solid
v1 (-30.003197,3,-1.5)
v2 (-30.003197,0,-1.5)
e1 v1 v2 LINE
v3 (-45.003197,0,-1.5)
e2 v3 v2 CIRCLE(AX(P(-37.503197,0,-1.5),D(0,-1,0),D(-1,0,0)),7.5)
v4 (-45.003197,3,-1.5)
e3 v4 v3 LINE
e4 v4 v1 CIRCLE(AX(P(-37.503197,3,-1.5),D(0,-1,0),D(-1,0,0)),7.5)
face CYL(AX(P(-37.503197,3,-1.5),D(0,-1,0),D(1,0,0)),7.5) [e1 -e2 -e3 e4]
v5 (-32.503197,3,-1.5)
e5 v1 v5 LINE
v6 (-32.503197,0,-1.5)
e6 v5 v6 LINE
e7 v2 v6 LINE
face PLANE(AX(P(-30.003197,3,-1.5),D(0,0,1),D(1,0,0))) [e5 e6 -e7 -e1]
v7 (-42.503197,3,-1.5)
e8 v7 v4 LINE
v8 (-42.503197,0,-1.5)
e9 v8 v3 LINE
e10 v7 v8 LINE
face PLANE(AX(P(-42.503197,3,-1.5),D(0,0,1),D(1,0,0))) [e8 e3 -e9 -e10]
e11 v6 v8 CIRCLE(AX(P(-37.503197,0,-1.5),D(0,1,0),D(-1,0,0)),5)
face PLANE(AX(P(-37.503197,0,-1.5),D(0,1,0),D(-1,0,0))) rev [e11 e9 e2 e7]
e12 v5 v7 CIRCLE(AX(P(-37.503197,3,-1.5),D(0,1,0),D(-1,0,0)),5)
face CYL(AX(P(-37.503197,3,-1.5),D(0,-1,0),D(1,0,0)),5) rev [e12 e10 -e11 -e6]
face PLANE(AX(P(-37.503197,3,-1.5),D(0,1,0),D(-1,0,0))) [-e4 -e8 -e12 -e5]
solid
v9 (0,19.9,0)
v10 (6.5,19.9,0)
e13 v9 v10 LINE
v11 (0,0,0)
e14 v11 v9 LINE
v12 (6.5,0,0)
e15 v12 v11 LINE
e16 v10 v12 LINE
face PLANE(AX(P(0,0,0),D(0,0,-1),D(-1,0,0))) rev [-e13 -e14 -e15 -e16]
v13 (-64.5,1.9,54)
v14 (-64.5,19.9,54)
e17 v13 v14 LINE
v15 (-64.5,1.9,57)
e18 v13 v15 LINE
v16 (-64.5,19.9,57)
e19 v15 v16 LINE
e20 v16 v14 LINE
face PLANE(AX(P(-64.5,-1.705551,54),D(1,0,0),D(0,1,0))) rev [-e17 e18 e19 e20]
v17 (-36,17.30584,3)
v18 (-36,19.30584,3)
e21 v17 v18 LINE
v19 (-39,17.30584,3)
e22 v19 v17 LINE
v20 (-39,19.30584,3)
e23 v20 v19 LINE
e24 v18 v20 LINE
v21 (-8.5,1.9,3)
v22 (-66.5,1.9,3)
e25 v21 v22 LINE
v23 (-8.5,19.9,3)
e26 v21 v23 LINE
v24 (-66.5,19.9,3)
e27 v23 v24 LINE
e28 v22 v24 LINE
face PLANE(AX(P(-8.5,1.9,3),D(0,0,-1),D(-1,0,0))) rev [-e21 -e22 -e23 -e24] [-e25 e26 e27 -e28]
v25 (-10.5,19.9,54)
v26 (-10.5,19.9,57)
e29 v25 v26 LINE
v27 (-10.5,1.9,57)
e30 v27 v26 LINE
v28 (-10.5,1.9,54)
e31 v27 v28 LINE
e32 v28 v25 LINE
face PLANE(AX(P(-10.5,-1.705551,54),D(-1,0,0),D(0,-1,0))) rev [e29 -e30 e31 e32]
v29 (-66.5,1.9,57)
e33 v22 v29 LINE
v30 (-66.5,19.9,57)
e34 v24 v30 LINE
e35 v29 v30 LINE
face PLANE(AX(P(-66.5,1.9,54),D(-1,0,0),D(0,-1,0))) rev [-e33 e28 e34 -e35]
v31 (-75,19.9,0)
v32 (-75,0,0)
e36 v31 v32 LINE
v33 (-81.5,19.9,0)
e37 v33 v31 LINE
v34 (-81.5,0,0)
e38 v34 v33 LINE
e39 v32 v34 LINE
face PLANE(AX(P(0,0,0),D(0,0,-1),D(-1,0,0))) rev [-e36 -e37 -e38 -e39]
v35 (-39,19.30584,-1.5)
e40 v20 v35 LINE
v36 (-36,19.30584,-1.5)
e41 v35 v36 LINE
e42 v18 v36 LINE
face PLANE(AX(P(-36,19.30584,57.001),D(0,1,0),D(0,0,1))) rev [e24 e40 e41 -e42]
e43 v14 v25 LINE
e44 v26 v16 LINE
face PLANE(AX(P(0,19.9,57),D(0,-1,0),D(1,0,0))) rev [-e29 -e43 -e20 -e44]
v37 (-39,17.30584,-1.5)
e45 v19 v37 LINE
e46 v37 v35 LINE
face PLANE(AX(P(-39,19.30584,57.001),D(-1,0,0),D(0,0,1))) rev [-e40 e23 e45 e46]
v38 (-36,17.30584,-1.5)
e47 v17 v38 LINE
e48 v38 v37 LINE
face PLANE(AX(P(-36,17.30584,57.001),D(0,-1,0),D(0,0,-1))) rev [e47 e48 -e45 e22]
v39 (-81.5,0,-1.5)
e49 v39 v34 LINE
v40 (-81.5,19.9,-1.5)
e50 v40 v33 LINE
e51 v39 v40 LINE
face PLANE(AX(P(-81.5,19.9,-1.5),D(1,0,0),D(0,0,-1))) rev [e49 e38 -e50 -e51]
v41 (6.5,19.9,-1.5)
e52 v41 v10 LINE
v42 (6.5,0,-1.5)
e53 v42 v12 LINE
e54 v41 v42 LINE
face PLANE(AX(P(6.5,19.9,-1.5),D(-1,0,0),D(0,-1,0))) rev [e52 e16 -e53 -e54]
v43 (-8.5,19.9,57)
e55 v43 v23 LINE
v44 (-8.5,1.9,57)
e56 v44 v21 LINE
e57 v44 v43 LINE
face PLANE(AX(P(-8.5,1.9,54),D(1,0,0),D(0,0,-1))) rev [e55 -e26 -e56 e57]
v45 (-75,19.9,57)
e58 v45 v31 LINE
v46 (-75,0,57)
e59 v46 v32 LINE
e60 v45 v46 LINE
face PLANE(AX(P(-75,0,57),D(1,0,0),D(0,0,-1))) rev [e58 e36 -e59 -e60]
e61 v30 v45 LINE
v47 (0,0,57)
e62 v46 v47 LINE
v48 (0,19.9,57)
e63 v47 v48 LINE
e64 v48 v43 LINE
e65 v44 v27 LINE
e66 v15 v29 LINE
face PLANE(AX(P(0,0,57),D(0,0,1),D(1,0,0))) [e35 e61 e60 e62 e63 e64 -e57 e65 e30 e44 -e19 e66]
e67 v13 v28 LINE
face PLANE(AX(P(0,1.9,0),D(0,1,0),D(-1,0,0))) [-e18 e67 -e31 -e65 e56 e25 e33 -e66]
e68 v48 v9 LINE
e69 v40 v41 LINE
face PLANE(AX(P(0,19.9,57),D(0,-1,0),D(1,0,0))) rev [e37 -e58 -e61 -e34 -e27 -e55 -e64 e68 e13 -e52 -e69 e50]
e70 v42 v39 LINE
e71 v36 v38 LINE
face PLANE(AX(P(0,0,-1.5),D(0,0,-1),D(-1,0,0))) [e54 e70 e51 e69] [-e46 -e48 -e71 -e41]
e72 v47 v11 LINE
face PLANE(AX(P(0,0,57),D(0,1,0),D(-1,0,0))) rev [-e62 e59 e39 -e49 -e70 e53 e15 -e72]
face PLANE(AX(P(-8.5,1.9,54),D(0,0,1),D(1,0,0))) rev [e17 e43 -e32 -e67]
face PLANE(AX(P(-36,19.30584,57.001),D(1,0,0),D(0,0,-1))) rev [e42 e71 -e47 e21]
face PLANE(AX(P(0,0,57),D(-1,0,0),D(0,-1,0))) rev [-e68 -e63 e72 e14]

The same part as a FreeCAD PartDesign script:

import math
import FreeCAD as App
import Part
import Sketcher
Q = App.Units.Quantity


def add_polygon(sketch, points):
    """Adds a closed chain of lines whose ends are joined by coincident constraints."""
    first, n = sketch.GeometryCount, len(points)
    for a, b in zip(points, points[1:] + points[:1]):
        sketch.addGeometry(Part.LineSegment(App.Vector(*a, 0), App.Vector(*b, 0)), False)
    for i in range(n):
        sketch.addConstraint(Sketcher.Constraint("Coincident", first + i, 2, first + (i + 1) % n, 1))

doc = App.newDocument("Part")
body = doc.addObject("PartDesign::Body", "Body")

# Sketch on XY plane
sketch1 = body.newObject("Sketcher::SketchObject", "Sketch")
sketch1.AttachmentSupport = (doc.getObject("XY_Plane"), [""])
sketch1.MapMode = "FlatFace"
add_polygon(sketch1, [(-75, 20), (-75, 0), (0, 0), (0, 20)])  # lines 0-3
sketch1.addConstraint([
    Sketcher.Constraint("Vertical", 0),
    Sketcher.Constraint("Horizontal", 1),
    Sketcher.Constraint("Vertical", 2),
    Sketcher.Constraint("Horizontal", 3),
    Sketcher.Constraint("Coincident", 1, 2, -1, 1),
    Sketcher.Constraint("DistanceX", 1, 1, 1, 2, Q("75 mm")),
    Sketcher.Constraint("DistanceY", 0, 2, 0, 1, Q("19.9 mm")),
])
pad1 = body.newObject("PartDesign::Pad", "Pad")
pad1.Profile = sketch1
pad1.Length = 57

# Sketch on XY plane
sketch2 = body.newObject("Sketcher::SketchObject", "Sketch001")
sketch2.AttachmentSupport = (doc.getObject("XY_Plane"), [""])
sketch2.MapMode = "FlatFace"
add_polygon(sketch2, [(6, 20), (6, 0), (-82, 0), (-82, 20)])  # lines 0-3
sketch2.addConstraint([
    Sketcher.Constraint("Vertical", 0),
    Sketcher.Constraint("Horizontal", 1),
    Sketcher.Constraint("Vertical", 2),
    Sketcher.Constraint("Horizontal", 3),
    Sketcher.Constraint("PointOnObject", 0, 2, -1),
    Sketcher.Constraint("DistanceX", 1, 2, 1, 1, Q("88 mm")),
    Sketcher.Constraint("DistanceY", 0, 2, 0, 1, Q("19.9 mm")),
    Sketcher.Constraint("DistanceX", -1, 1, 0, 2, Q("6.5 mm")),
])
pad2 = body.newObject("PartDesign::Pad", "Pad001")
pad2.Profile = sketch2
pad2.Length = 1.5
pad2.Reversed = True

# Sketch on XZ plane
sketch3 = body.newObject("Sketcher::SketchObject", "Sketch002")
sketch3.AttachmentSupport = (doc.getObject("XZ_Plane"), [""])
sketch3.MapMode = "FlatFace"
sketch3.AttachmentOffset = App.Placement(App.Vector(0, 0, -19.9), App.Rotation())
add_polygon(sketch3, [(-66, 3), (-66, 54), (-8, 54), (-8, 3)])  # lines 0-3
sketch3.addConstraint([
    Sketcher.Constraint("Vertical", 0),
    Sketcher.Constraint("Horizontal", 1),
    Sketcher.Constraint("Vertical", 2),
    Sketcher.Constraint("Horizontal", 3),
    Sketcher.Constraint("DistanceX", 1, 1, 1, 2, Q("58 mm")),
    Sketcher.Constraint("DistanceY", 0, 1, 0, 2, Q("51 mm")),
    Sketcher.Constraint("DistanceY", -1, 1, 0, 2, Q("54 mm")),
    Sketcher.Constraint("DistanceX", 0, 2, -1, 1, Q("66.5 mm")),
])
pocket1 = body.newObject("PartDesign::Pocket", "Pocket")
pocket1.Profile = sketch3
pocket1.Length = 18
pocket1.Reversed = True

# Sketch on XZ plane
sketch4 = body.newObject("Sketcher::SketchObject", "Sketch003")
sketch4.AttachmentSupport = (doc.getObject("XZ_Plane"), [""])
sketch4.MapMode = "FlatFace"
sketch4.AttachmentOffset = App.Placement(App.Vector(0, 0, -19.9), App.Rotation())
add_polygon(sketch4, [(-10.5, 54), (-10.5, 57), (-8.5, 57), (-8.5, 54)])  # lines 0-3
add_polygon(sketch4, [(-66.5, 54), (-66.5, 57), (-64.5, 57), (-64.5, 54)])  # lines 4-7
sketch4.addConstraint([
    Sketcher.Constraint("Vertical", 0),
    Sketcher.Constraint("Horizontal", 1),
    Sketcher.Constraint("Vertical", 2),
    Sketcher.Constraint("Horizontal", 3),
    Sketcher.Constraint("Vertical", 4),
    Sketcher.Constraint("Horizontal", 5),
    Sketcher.Constraint("Vertical", 6),
    Sketcher.Constraint("Horizontal", 7),
    Sketcher.Constraint("Horizontal", 1, 2, 4, 2),
    Sketcher.Constraint("Horizontal", 3, 2, 6, 2),
    Sketcher.Constraint("Equal", 3, 5),
    Sketcher.Constraint("DistanceX", 1, 1, 1, 2, Q("2 mm")),
    Sketcher.Constraint("DistanceY", 0, 1, 0, 2, Q("3 mm")),
    Sketcher.Constraint("DistanceY", -1, 1, 0, 2, Q("57 mm")),
    Sketcher.Constraint("DistanceX", 4, 2, 0, 2, Q("56 mm")),
    Sketcher.Constraint("DistanceX", 0, 2, -1, 1, Q("10.5 mm")),
])
pocket2 = body.newObject("PartDesign::Pocket", "Pocket001")
pocket2.Profile = sketch4
pocket2.Length = 18
pocket2.Reversed = True

# Sketch on XY plane
sketch5 = body.newObject("Sketcher::SketchObject", "Sketch004")
sketch5.AttachmentSupport = (doc.getObject("XY_Plane"), [""])
sketch5.MapMode = "FlatFace"
sketch5.AttachmentOffset = App.Placement(App.Vector(0, 0, -1.5), App.Rotation())
add_polygon(sketch5, [(-36, 19.3), (-36, 17.3), (-39, 17.3), (-39, 19.3)])  # lines 0-3
sketch5.addConstraint([
    Sketcher.Constraint("Vertical", 0),
    Sketcher.Constraint("Horizontal", 1),
    Sketcher.Constraint("Vertical", 2),
    Sketcher.Constraint("Horizontal", 3),
    Sketcher.Constraint("DistanceX", 1, 2, 1, 1, Q("3 mm")),
    Sketcher.Constraint("DistanceY", 0, 2, 0, 1, Q("2 mm")),
    Sketcher.Constraint("DistanceX", 0, 2, -1, 1, Q("36 mm")),
    Sketcher.Constraint("DistanceY", -1, 1, 0, 2, Q("17.30584 mm")),
])
pocket3 = body.newObject("PartDesign::Pocket", "Pocket002")
pocket3.Profile = sketch5
pocket3.Length = 4.5
pocket3.Reversed = True
body2 = doc.addObject("PartDesign::Body", "Body001")

# Sketch on XZ plane
sketch6 = body2.newObject("Sketcher::SketchObject", "Sketch005")
sketch6.AttachmentSupport = (doc.getObject("XZ_Plane001"), [""])
sketch6.MapMode = "FlatFace"
sketch6.addGeometry([
    Part.LineSegment(App.Vector(-30, -1.5, 0), App.Vector(-32.5, -1.5, 0)),
    Part.ArcOfCircle(Part.Circle(App.Vector(-37.5, -1.5, 0), App.Vector(0, 0, 1), 5), math.radians(180), math.radians(360)),
    Part.LineSegment(App.Vector(-42.5, -1.5, 0), App.Vector(-45, -1.5, 0)),
    Part.ArcOfCircle(Part.Circle(App.Vector(-37.5, -1.5, 0), App.Vector(0, 0, 1), 7.5), math.radians(180), math.radians(360)),
], False)
sketch6.addConstraint([
    Sketcher.Constraint("Coincident", 0, 2, 1, 2),
    Sketcher.Constraint("Coincident", 1, 1, 2, 1),
    Sketcher.Constraint("Coincident", 2, 2, 3, 1),
    Sketcher.Constraint("Coincident", 3, 2, 0, 1),
    Sketcher.Constraint("Horizontal", 0),
    Sketcher.Constraint("Horizontal", 2),
    Sketcher.Constraint("Coincident", 3, 3, 1, 3),
    Sketcher.Constraint("Horizontal", 3, 3, 0, 2),
    Sketcher.Constraint("Horizontal", 0, 2, 1, 1),
    Sketcher.Constraint("Radius", 1, Q("5 mm")),
    Sketcher.Constraint("Radius", 3, Q("7.5 mm")),
    Sketcher.Constraint("DistanceY", 1, 3, -1, 1, Q("1.5 mm")),
    Sketcher.Constraint("DistanceX", 1, 3, -1, 1, Q("37.503197 mm")),
])
pad3 = body2.newObject("PartDesign::Pad", "Pad002")
pad3.Profile = sketch6
pad3.Length = 3
pad3.Reversed = True

doc.recompute()
